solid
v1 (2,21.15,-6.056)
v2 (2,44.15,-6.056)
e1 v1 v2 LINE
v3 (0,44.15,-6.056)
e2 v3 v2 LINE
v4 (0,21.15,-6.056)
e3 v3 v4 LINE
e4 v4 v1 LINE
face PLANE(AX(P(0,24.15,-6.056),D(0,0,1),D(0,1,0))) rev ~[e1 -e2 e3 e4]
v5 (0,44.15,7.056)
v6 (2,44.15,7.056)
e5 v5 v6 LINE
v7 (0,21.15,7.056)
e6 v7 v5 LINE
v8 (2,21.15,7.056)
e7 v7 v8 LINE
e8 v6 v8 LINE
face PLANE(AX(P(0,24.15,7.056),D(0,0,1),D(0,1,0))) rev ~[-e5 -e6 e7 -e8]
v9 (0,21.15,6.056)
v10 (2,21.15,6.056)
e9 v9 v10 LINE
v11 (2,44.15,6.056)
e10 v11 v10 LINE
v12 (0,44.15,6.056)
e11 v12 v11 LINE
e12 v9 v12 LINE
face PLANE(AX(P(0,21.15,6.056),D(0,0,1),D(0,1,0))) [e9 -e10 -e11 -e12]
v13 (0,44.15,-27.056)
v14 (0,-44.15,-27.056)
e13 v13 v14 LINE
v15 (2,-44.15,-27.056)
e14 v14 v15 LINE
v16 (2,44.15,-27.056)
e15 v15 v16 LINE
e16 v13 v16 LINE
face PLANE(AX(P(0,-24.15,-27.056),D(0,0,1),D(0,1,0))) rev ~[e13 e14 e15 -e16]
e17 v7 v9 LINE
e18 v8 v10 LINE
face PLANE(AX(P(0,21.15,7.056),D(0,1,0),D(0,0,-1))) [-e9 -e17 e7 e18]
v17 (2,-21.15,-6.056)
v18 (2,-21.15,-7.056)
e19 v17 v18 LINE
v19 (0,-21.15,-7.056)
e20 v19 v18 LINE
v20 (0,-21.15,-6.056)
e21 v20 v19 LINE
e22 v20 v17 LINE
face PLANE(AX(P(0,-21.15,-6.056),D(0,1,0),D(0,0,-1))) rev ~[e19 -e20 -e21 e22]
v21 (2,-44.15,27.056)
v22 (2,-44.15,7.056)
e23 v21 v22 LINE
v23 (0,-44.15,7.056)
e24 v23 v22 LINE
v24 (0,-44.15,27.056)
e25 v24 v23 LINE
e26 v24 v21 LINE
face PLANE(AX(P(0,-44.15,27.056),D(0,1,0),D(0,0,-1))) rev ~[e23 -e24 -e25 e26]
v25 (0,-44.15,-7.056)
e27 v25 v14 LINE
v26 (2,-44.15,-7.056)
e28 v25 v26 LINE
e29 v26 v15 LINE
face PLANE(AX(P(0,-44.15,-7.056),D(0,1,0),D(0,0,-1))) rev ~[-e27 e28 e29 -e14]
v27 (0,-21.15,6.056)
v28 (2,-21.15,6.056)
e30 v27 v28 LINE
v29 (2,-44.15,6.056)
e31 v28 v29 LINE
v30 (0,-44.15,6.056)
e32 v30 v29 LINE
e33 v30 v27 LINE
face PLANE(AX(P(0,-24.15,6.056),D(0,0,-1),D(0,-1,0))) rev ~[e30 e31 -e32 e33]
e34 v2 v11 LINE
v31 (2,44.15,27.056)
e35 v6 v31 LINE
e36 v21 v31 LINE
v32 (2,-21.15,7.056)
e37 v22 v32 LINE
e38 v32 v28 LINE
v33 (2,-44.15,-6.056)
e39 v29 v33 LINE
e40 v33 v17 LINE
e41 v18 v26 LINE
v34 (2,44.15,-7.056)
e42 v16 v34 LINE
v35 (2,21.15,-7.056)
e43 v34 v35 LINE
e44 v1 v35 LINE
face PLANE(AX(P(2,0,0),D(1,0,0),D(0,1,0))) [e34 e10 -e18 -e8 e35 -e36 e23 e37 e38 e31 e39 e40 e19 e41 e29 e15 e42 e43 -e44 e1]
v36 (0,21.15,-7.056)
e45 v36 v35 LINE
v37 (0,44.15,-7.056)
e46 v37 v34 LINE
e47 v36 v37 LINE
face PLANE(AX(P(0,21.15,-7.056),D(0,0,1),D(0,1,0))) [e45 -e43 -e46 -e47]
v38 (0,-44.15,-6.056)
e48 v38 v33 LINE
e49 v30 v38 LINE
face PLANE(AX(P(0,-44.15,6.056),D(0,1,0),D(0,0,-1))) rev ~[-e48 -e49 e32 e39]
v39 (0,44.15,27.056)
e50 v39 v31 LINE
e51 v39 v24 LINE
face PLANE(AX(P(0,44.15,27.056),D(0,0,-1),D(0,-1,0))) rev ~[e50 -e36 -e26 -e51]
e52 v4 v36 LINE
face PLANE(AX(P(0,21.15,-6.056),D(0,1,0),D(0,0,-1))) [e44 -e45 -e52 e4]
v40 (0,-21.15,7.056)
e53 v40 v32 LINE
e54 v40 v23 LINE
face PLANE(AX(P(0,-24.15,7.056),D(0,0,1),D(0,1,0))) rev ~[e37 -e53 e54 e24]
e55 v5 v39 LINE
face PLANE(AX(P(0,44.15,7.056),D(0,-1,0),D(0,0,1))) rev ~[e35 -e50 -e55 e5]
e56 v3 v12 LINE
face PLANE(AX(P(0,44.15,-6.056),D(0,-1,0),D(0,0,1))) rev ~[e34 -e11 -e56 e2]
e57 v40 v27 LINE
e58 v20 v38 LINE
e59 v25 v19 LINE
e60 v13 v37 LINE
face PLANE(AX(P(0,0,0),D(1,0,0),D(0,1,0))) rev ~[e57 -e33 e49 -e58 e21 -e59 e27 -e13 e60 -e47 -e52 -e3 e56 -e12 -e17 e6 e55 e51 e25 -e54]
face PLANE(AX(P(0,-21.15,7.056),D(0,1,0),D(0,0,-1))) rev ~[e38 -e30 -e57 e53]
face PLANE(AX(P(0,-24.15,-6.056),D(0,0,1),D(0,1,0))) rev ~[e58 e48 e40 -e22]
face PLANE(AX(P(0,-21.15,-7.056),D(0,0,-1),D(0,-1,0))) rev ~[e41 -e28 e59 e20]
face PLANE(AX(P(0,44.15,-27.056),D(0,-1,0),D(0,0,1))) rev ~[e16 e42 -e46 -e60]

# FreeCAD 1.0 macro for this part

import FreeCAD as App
import Part
import Sketcher

V = App.Vector

doc = App.newDocument("Part")
params = doc.addObject("Spreadsheet::Sheet", "Params")
for row, (alias, value) in enumerate([
    ("sketch1_height", "20 mm"),
    ("sketch1_height2", "1 mm"),
    ("sketch1_width", "88.3 mm"),
    ("sketch1_width2", "23 mm"),
    ("pad1_length", "2 mm"),
], start=1):
    params.set(f"A{row}", alias)
    params.set(f"B{row}", "=" + value)
    params.setAlias(f"B{row}", alias)

body = doc.addObject("PartDesign::Body", "Body")

# Sketch on YZ plane
sketch1 = body.newObject("Sketcher::SketchObject", "Sketch")
sketch1.AttachmentSupport = (doc.getObject("YZ_Plane"), [""])
sketch1.MapMode = "FlatFace"
sketch1.addGeometry(Part.LineSegment(V(44.15, 7.056, 0), V(44.15, 27.056, 0)), False)
sketch1.addGeometry(Part.LineSegment(V(44.15, 27.056, 0), V(-44.15, 27.056, 0)), False)
sketch1.addGeometry(Part.LineSegment(V(-44.15, 27.056, 0), V(-44.15, 7.056, 0)), False)
sketch1.addGeometry(Part.LineSegment(V(-44.15, 7.056, 0), V(-21.15, 7.056, 0)), False)
sketch1.addGeometry(Part.LineSegment(V(-21.15, 7.056, 0), V(-21.15, 6.056, 0)), False)
sketch1.addGeometry(Part.LineSegment(V(-21.15, 6.056, 0), V(-44.15, 6.056, 0)), False)
sketch1.addGeometry(Part.LineSegment(V(-44.15, 6.056, 0), V(-44.15, -6.056, 0)), False)
sketch1.addGeometry(Part.LineSegment(V(-44.15, -6.056, 0), V(-21.15, -6.056, 0)), False)
sketch1.addGeometry(Part.LineSegment(V(-21.15, -6.056, 0), V(-21.15, -7.056, 0)), False)
sketch1.addGeometry(Part.LineSegment(V(-21.15, -7.056, 0), V(-44.15, -7.056, 0)), False)
sketch1.addGeometry(Part.LineSegment(V(-44.15, -7.056, 0), V(-44.15, -27.056, 0)), False)
sketch1.addGeometry(Part.LineSegment(V(-44.15, -27.056, 0), V(44.15, -27.056, 0)), False)
sketch1.addGeometry(Part.LineSegment(V(44.15, -27.056, 0), V(44.15, -7.056, 0)), False)
sketch1.addGeometry(Part.LineSegment(V(44.15, -7.056, 0), V(21.15, -7.056, 0)), False)
sketch1.addGeometry(Part.LineSegment(V(21.15, -7.056, 0), V(21.15, -6.056, 0)), False)
sketch1.addGeometry(Part.LineSegment(V(21.15, -6.056, 0), V(44.15, -6.056, 0)), False)
sketch1.addGeometry(Part.LineSegment(V(44.15, -6.056, 0), V(44.15, 6.056, 0)), False)
sketch1.addGeometry(Part.LineSegment(V(44.15, 6.056, 0), V(21.15, 6.056, 0)), False)
sketch1.addGeometry(Part.LineSegment(V(21.15, 6.056, 0), V(21.15, 7.056, 0)), False)
sketch1.addGeometry(Part.LineSegment(V(21.15, 7.056, 0), V(44.15, 7.056, 0)), False)
sketch1.addConstraint(Sketcher.Constraint("Coincident", 0, 2, 1, 1))
sketch1.addConstraint(Sketcher.Constraint("Coincident", 1, 2, 2, 1))
sketch1.addConstraint(Sketcher.Constraint("Coincident", 2, 2, 3, 1))
sketch1.addConstraint(Sketcher.Constraint("Coincident", 3, 2, 4, 1))
sketch1.addConstraint(Sketcher.Constraint("Coincident", 4, 2, 5, 1))
sketch1.addConstraint(Sketcher.Constraint("Coincident", 5, 2, 6, 1))
sketch1.addConstraint(Sketcher.Constraint("Coincident", 6, 2, 7, 1))
sketch1.addConstraint(Sketcher.Constraint("Coincident", 7, 2, 8, 1))
sketch1.addConstraint(Sketcher.Constraint("Coincident", 8, 2, 9, 1))
sketch1.addConstraint(Sketcher.Constraint("Coincident", 9, 2, 10, 1))
sketch1.addConstraint(Sketcher.Constraint("Coincident", 10, 2, 11, 1))
sketch1.addConstraint(Sketcher.Constraint("Coincident", 11, 2, 12, 1))
sketch1.addConstraint(Sketcher.Constraint("Coincident", 12, 2, 13, 1))
sketch1.addConstraint(Sketcher.Constraint("Coincident", 13, 2, 14, 1))
sketch1.addConstraint(Sketcher.Constraint("Coincident", 14, 2, 15, 1))
sketch1.addConstraint(Sketcher.Constraint("Coincident", 15, 2, 16, 1))
sketch1.addConstraint(Sketcher.Constraint("Coincident", 16, 2, 17, 1))
sketch1.addConstraint(Sketcher.Constraint("Coincident", 17, 2, 18, 1))
sketch1.addConstraint(Sketcher.Constraint("Coincident", 18, 2, 19, 1))
sketch1.addConstraint(Sketcher.Constraint("Coincident", 19, 2, 0, 1))
sketch1.addConstraint(Sketcher.Constraint("Vertical", 0))
sketch1.addConstraint(Sketcher.Constraint("Horizontal", 1))
sketch1.addConstraint(Sketcher.Constraint("Vertical", 2))
sketch1.addConstraint(Sketcher.Constraint("Horizontal", 3))
sketch1.addConstraint(Sketcher.Constraint("Vertical", 4))
sketch1.addConstraint(Sketcher.Constraint("Horizontal", 5))
sketch1.addConstraint(Sketcher.Constraint("Vertical", 6))
sketch1.addConstraint(Sketcher.Constraint("Horizontal", 7))
sketch1.addConstraint(Sketcher.Constraint("Vertical", 8))
sketch1.addConstraint(Sketcher.Constraint("Horizontal", 9))
sketch1.addConstraint(Sketcher.Constraint("Vertical", 10))
sketch1.addConstraint(Sketcher.Constraint("Horizontal", 11))
sketch1.addConstraint(Sketcher.Constraint("Vertical", 12))
sketch1.addConstraint(Sketcher.Constraint("Horizontal", 13))
sketch1.addConstraint(Sketcher.Constraint("Vertical", 14))
sketch1.addConstraint(Sketcher.Constraint("Horizontal", 15))
sketch1.addConstraint(Sketcher.Constraint("Vertical", 16))
sketch1.addConstraint(Sketcher.Constraint("Horizontal", 17))
sketch1.addConstraint(Sketcher.Constraint("Vertical", 18))
sketch1.addConstraint(Sketcher.Constraint("Horizontal", 19))
sketch1.addConstraint(Sketcher.Constraint("Symmetric", 0, 2, 10, 2, -1, 1))
sketch1.addConstraint(Sketcher.Constraint("Symmetric", 2, 2, 12, 2, -1, 1))
sketch1.addConstraint(Sketcher.Constraint("Symmetric", 4, 2, 14, 2, -1, 1))
sketch1.addConstraint(Sketcher.Constraint("Symmetric", 6, 2, 16, 2, -1, 1))
sketch1.addConstraint(Sketcher.Constraint("Symmetric", 8, 2, 18, 2, -1, 1))
sketch1.addConstraint(Sketcher.Constraint("Symmetric", 9, 2, 12, 2, -2))
sketch1.addConstraint(Sketcher.Constraint("Symmetric", 7, 2, 14, 2, -2))
sketch1.addConstraint(Sketcher.Constraint("Vertical", 2, 2, 5, 2))
sketch1.addConstraint(Sketcher.Constraint("DistanceY", 0, 1, 0, 2, 20.0))
sketch1.addConstraint(Sketcher.Constraint("DistanceY", 4, 2, 4, 1, 1.0))
sketch1.addConstraint(Sketcher.Constraint("DistanceX", 1, 2, 1, 1, 88.3))
sketch1.addConstraint(Sketcher.Constraint("DistanceX", 3, 1, 3, 2, 23.0))
sketch1.addConstraint(Sketcher.Constraint("DistanceY", 11, 2, 0, 2, 54.112))
sketch1.setExpression("Constraints[48]", "Params.sketch1_height")
sketch1.setExpression("Constraints[49]", "Params.sketch1_height2")
sketch1.setExpression("Constraints[50]", "Params.sketch1_width")
sketch1.setExpression("Constraints[51]", "Params.sketch1_width2")
pad1 = body.newObject("PartDesign::Pad", "Pad")
pad1.Profile = sketch1
pad1.setExpression("Length", "Params.pad1_length")

doc.recompute()
